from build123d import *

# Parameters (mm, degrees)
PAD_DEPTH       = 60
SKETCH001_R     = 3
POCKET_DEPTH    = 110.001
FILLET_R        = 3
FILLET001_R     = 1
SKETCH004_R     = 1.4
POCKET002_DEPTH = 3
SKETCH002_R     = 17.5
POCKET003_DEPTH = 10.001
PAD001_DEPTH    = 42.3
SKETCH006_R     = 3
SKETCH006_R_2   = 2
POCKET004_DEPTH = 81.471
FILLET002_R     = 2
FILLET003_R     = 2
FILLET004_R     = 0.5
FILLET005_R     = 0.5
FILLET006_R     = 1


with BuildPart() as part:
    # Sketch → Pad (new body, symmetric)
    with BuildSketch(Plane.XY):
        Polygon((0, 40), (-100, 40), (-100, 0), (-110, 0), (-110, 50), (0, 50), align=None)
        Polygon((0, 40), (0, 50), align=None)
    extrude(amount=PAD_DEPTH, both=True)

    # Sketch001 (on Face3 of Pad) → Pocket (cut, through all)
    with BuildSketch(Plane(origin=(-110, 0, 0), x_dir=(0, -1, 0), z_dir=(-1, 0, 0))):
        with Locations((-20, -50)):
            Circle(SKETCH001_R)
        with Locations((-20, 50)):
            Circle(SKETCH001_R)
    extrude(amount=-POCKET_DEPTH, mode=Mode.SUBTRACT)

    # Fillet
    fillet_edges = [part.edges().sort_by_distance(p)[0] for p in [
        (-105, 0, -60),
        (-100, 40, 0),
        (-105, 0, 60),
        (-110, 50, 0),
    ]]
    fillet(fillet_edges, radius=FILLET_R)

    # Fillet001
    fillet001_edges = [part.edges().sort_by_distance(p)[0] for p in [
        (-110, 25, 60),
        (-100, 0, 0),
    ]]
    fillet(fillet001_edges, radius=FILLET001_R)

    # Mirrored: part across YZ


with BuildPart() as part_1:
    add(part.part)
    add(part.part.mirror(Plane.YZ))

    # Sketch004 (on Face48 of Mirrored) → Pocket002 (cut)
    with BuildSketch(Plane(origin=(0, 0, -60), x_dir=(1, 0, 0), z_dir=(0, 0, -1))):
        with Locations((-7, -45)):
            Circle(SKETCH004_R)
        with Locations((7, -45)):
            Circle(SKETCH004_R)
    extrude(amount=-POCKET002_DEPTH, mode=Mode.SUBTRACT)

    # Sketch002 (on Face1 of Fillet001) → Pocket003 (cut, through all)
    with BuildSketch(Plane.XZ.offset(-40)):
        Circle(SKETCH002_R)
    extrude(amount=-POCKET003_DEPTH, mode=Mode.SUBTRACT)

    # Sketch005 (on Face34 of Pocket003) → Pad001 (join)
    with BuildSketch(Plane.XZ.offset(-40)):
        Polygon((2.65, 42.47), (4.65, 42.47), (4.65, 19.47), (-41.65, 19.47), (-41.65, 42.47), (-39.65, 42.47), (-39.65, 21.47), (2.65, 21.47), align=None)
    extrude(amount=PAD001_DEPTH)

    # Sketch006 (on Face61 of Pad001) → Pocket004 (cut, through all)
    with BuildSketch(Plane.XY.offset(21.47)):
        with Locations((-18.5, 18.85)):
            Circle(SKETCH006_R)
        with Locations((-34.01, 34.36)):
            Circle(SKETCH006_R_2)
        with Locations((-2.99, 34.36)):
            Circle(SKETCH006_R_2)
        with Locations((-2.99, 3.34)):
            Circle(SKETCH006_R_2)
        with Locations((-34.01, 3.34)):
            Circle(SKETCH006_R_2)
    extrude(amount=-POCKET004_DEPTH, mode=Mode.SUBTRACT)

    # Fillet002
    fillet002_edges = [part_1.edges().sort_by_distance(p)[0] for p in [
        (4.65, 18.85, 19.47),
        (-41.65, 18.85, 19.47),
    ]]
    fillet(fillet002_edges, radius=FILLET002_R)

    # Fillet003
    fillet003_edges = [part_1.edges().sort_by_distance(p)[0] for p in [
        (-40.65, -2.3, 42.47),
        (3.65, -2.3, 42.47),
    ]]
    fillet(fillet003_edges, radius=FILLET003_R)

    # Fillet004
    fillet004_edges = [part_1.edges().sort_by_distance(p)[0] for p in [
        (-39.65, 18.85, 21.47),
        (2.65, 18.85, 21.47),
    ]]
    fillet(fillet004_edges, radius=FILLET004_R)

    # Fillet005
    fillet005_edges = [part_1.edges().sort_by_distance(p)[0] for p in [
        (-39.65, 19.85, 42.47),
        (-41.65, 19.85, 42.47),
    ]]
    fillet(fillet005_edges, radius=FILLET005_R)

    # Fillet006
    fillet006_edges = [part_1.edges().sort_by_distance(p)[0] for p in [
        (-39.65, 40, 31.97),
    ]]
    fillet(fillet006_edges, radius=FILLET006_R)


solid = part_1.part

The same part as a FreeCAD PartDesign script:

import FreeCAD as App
import Part
import Sketcher
from FreeCAD import Vector
Q = App.Units.Quantity


def edges_at(feature, points):
    """Names of the edges that pass closest to the given points."""
    edges = feature.Shape.Edges
    near = lambda p: min(range(len(edges)), key=lambda i: edges[i].distToShape(Part.Vertex(*p))[0])
    return sorted({f"Edge{near(p) + 1}" for p in points})

doc = App.newDocument("Part")
body = doc.addObject("PartDesign::Body", "Body")

sketch1 = body.newObject("Sketcher::SketchObject", "Sketch")
sketch1.AttachmentSupport = (doc.getObject("XY_Plane"), [""])
sketch1.MapMode = "FlatFace"
sketch1.addGeometry([
    Part.LineSegment(Vector(-100, 40, 0), Vector(0, 40, 0)),
    Part.LineSegment(Vector(0, 40, 0), Vector(0, 50, 0)),
    Part.LineSegment(Vector(0, 50, 0), Vector(-110, 50, 0)),
    Part.LineSegment(Vector(-110, 50, 0), Vector(-110, 0, 0)),
    Part.LineSegment(Vector(-110, 0, 0), Vector(-100, 0, 0)),
    Part.LineSegment(Vector(-100, 0, 0), Vector(-100, 40, 0)),
], False)
sketch1.addConstraint([
    Sketcher.Constraint("Coincident", 0, 2, 1, 1),
    Sketcher.Constraint("Coincident", 1, 2, 2, 1),
    Sketcher.Constraint("Coincident", 2, 2, 3, 1),
    Sketcher.Constraint("Coincident", 3, 2, 4, 1),
    Sketcher.Constraint("Coincident", 4, 2, 5, 1),
    Sketcher.Constraint("Coincident", 5, 2, 0, 1),
    Sketcher.Constraint("Horizontal", 0),
    Sketcher.Constraint("Vertical", 1),
    Sketcher.Constraint("Horizontal", 2),
    Sketcher.Constraint("Vertical", 3),
    Sketcher.Constraint("Horizontal", 4),
    Sketcher.Constraint("Vertical", 5),
    Sketcher.Constraint("PointOnObject", 0, 2, -2),
    Sketcher.Constraint("PointOnObject", 3, 2, -1),
    Sketcher.Constraint("Equal", 4, 1),
    Sketcher.Constraint("DistanceX", 0, 1, 0, 2, Q("100 mm")),
    Sketcher.Constraint("DistanceX", 2, 2, 2, 1, Q("110 mm")),
    Sketcher.Constraint("DistanceY", 3, 2, 3, 1, Q("50 mm")),
])
pad1 = body.newObject("PartDesign::Pad", "Pad")
pad1.Profile = sketch1
pad1.Length = 120
pad1.Midplane = True

sketch2 = body.newObject("Sketcher::SketchObject", "Sketch001")
sketch2.AttachmentSupport = (doc.getObject("YZ_Plane"), [""])
sketch2.MapMode = "FlatFace"
sketch2.AttachmentOffset = App.Placement(Vector(0, 0, -110), App.Rotation())
sketch2.addGeometry([
    Part.Circle(Vector(20, -50, 0), Vector(0, 0, 1), 3),
    Part.Circle(Vector(20, 50, 0), Vector(0, 0, 1), 3),
], False)
sketch2.addConstraint([
    Sketcher.Constraint("Equal", 0, 1),
    Sketcher.Constraint("Symmetric", 0, 3, 1, 3, -1),
    Sketcher.Constraint("Diameter", 0, Q("6 mm")),
    Sketcher.Constraint("DistanceX", -1, 1, 0, 3, Q("20 mm")),
    Sketcher.Constraint("DistanceY", 0, 3, -1, 1, Q("50 mm")),
])
pocket1 = body.newObject("PartDesign::Pocket", "Pocket")
pocket1.Profile = sketch2
pocket1.Type = "ThroughAll"
pocket1.Reversed = True
doc.recompute()

fillet = body.newObject("PartDesign::Fillet", "Fillet")
fillet.Base = (pocket1, edges_at(pocket1, [
    (-105, 0, -60),
    (-100, 40, 0),
    (-105, 0, 60),
    (-110, 50, 0),
]))
fillet.Radius = 3
doc.recompute()

fillet2 = body.newObject("PartDesign::Fillet", "Fillet001")
fillet2.Base = (fillet, edges_at(fillet, [(-110, 25, 60), (-100, 0, 0)]))
fillet2.Radius = 1
body2 = doc.addObject("PartDesign::Body", "Body001")
doc.recompute()

body2.BaseFeature = body
doc.recompute()

mirroring = doc.addObject("Part::Mirroring", "Mirroring")
mirroring.Source = body
mirroring.Base = Vector(0, 0, 0)
mirroring.Normal = Vector(1, 0, 0)
body3 = doc.addObject("PartDesign::Body", "Body002")
body3.BaseFeature = mirroring
boolean = body2.newObject("PartDesign::Boolean", "Boolean")
boolean.Type = "Fuse"
boolean.addObjects([body3])
doc.recompute()

sketch3 = body2.newObject("Sketcher::SketchObject", "Sketch002")
sketch3.AttachmentSupport = (doc.getObject("XY_Plane001"), [""])
sketch3.MapMode = "FlatFace"
sketch3.AttachmentOffset = App.Placement(Vector(0, 0, -60), App.Rotation())
sketch3.addGeometry([
    Part.Circle(Vector(-7, 45, 0), Vector(0, 0, 1), 1.4),
    Part.Circle(Vector(7, 45, 0), Vector(0, 0, 1), 1.4),
], False)
sketch3.addConstraint([
    Sketcher.Constraint("Equal", 0, 1),
    Sketcher.Constraint("Symmetric", 0, 3, 1, 3, -2),
    Sketcher.Constraint("Diameter", 0, Q("2.8 mm")),
    Sketcher.Constraint("DistanceX", 0, 3, -1, 1, Q("7 mm")),
    Sketcher.Constraint("DistanceY", -1, 1, 0, 3, Q("45 mm")),
])
pocket2 = body2.newObject("PartDesign::Pocket", "Pocket001")
pocket2.Profile = sketch3
pocket2.Length = 3
pocket2.Reversed = True

sketch4 = body2.newObject("Sketcher::SketchObject", "Sketch003")
sketch4.AttachmentSupport = (doc.getObject("XZ_Plane001"), [""])
sketch4.MapMode = "FlatFace"
sketch4.AttachmentOffset = App.Placement(Vector(0, 0, -40), App.Rotation())
sketch4.addGeometry(Part.Circle(Vector(0, 0, 0), Vector(0, 0, 1), 18), False)
sketch4.addConstraint([
    Sketcher.Constraint("Coincident", 0, 3, -1, 1),
    Sketcher.Constraint("Diameter", 0, Q("35 mm")),
])
pocket3 = body2.newObject("PartDesign::Pocket", "Pocket002")
pocket3.Profile = sketch4
pocket3.Type = "ThroughAll"

sketch5 = body2.newObject("Sketcher::SketchObject", "Sketch004")
sketch5.AttachmentSupport = (doc.getObject("XZ_Plane001"), [""])
sketch5.MapMode = "FlatFace"
sketch5.AttachmentOffset = App.Placement(Vector(0, 0, -40), App.Rotation())
sketch5.addGeometry([
    Part.LineSegment(Vector(4.7, 42.5, 0), Vector(2.6, 42.5, 0)),
    Part.LineSegment(Vector(2.6, 42.5, 0), Vector(2.6, 21.5, 0)),
    Part.LineSegment(Vector(2.6, 21.5, 0), Vector(-39.6, 21.5, 0)),
    Part.LineSegment(Vector(-39.6, 21.5, 0), Vector(-39.6, 42.5, 0)),
    Part.LineSegment(Vector(-39.6, 42.5, 0), Vector(-41.6, 42.5, 0)),
    Part.LineSegment(Vector(-41.6, 42.5, 0), Vector(-41.6, 19.5, 0)),
    Part.LineSegment(Vector(-41.6, 19.5, 0), Vector(4.7, 19.5, 0)),
    Part.LineSegment(Vector(4.7, 19.5, 0), Vector(4.7, 42.5, 0)),
], False)
sketch5.addConstraint([
    Sketcher.Constraint("Coincident", 0, 2, 1, 1),
    Sketcher.Constraint("Coincident", 1, 2, 2, 1),
    Sketcher.Constraint("Coincident", 2, 2, 3, 1),
    Sketcher.Constraint("Coincident", 3, 2, 4, 1),
    Sketcher.Constraint("Coincident", 4, 2, 5, 1),
    Sketcher.Constraint("Coincident", 5, 2, 6, 1),
    Sketcher.Constraint("Coincident", 6, 2, 7, 1),
    Sketcher.Constraint("Coincident", 7, 2, 0, 1),
    Sketcher.Constraint("Horizontal", 0),
    Sketcher.Constraint("Vertical", 1),
    Sketcher.Constraint("Horizontal", 2),
    Sketcher.Constraint("Vertical", 3),
    Sketcher.Constraint("Horizontal", 4),
    Sketcher.Constraint("Vertical", 5),
    Sketcher.Constraint("Horizontal", 6),
    Sketcher.Constraint("Vertical", 7),
    Sketcher.Constraint("Horizontal", 0, 2, 3, 2),
    Sketcher.Constraint("Equal", 0, 4),
    Sketcher.Constraint("DistanceX", 0, 2, 0, 1, Q("2 mm")),
    Sketcher.Constraint("DistanceY", 1, 2, 1, 1, Q("21 mm")),
    Sketcher.Constraint("DistanceY", 5, 2, 5, 1, Q("23 mm")),
    Sketcher.Constraint("DistanceX", 2, 2, 2, 1, Q("42.3 mm")),
    Sketcher.Constraint("DistanceX", -1, 1, 0, 2, Q("2.65 mm")),
    Sketcher.Constraint("DistanceY", -1, 1, 0, 2, Q("42.47 mm")),
])
pad2 = body2.newObject("PartDesign::Pad", "Pad001")
pad2.Profile = sketch5
pad2.Length = 42.3

sketch6 = body2.newObject("Sketcher::SketchObject", "Sketch005")
sketch6.AttachmentSupport = (doc.getObject("XY_Plane001"), [""])
sketch6.MapMode = "FlatFace"
sketch6.AttachmentOffset = App.Placement(Vector(0, 0, 21.47), App.Rotation())
sketch6.addGeometry([
    Part.Circle(Vector(-18.5, 18.9, 0), Vector(0, 0, 1), 3),
    Part.Circle(Vector(-34, 34.4, 0), Vector(0, 0, 1), 2),
    Part.Circle(Vector(-3, 34.4, 0), Vector(0, 0, 1), 2),
    Part.Circle(Vector(-3, 3.3, 0), Vector(0, 0, 1), 2),
    Part.Circle(Vector(-34, 3.3, 0), Vector(0, 0, 1), 2),
], False)
sketch6.addConstraint([
    Sketcher.Constraint("Equal", 1, 2),
    Sketcher.Constraint("Equal", 2, 3),
    Sketcher.Constraint("Equal", 3, 4),
    Sketcher.Constraint("Horizontal", 1, 3, 2, 3),
    Sketcher.Constraint("Horizontal", 3, 3, 4, 3),
    Sketcher.Constraint("Vertical", 2, 3, 3, 3),
    Sketcher.Constraint("Vertical", 1, 3, 4, 3),
    Sketcher.Constraint("Diameter", 0, Q("6 mm")),
    Sketcher.Constraint("Diameter", 1, Q("4 mm")),
    Sketcher.Constraint("DistanceX", 0, 3, -1, 1, Q("18.5 mm")),
    Sketcher.Constraint("DistanceY", -1, 1, 0, 3, Q("18.85 mm")),
    Sketcher.Constraint("DistanceX", 1, 3, -1, 1, Q("34.01 mm")),
    Sketcher.Constraint("DistanceY", -1, 1, 1, 3, Q("34.36 mm")),
    Sketcher.Constraint("DistanceX", 2, 3, -1, 1, Q("2.99 mm")),
    Sketcher.Constraint("DistanceY", -1, 1, 3, 3, Q("3.34 mm")),
])
pocket4 = body2.newObject("PartDesign::Pocket", "Pocket003")
pocket4.Profile = sketch6
pocket4.Type = "ThroughAll"
doc.recompute()

fillet3 = body2.newObject("PartDesign::Fillet", "Fillet002")
fillet3.Base = (pocket4, edges_at(pocket4, [(4.65, 18.85, 19.47), (-41.65, 18.85, 19.47)]))
fillet3.Radius = 2
doc.recompute()

fillet4 = body2.newObject("PartDesign::Fillet", "Fillet003")
fillet4.Base = (fillet3, edges_at(fillet3, [(-40.65, -2.3, 42.47), (3.65, -2.3, 42.47)]))
fillet4.Radius = 2
doc.recompute()

fillet5 = body2.newObject("PartDesign::Fillet", "Fillet004")
fillet5.Base = (fillet4, edges_at(fillet4, [(-39.65, 18.85, 21.47), (2.65, 18.85, 21.47)]))
fillet5.Radius = 0.5
doc.recompute()

fillet6 = body2.newObject("PartDesign::Fillet", "Fillet005")
fillet6.Base = (fillet5, edges_at(fillet5, [(-39.65, 19.85, 42.47), (-41.65, 19.85, 42.47)]))
fillet6.Radius = 0.5
doc.recompute()

fillet7 = body2.newObject("PartDesign::Fillet", "Fillet006")
fillet7.Base = (fillet6, edges_at(fillet6, [(-39.65, 40, 31.97)]))
fillet7.Radius = 1
mirroring.Visibility = False

doc.recompute()
